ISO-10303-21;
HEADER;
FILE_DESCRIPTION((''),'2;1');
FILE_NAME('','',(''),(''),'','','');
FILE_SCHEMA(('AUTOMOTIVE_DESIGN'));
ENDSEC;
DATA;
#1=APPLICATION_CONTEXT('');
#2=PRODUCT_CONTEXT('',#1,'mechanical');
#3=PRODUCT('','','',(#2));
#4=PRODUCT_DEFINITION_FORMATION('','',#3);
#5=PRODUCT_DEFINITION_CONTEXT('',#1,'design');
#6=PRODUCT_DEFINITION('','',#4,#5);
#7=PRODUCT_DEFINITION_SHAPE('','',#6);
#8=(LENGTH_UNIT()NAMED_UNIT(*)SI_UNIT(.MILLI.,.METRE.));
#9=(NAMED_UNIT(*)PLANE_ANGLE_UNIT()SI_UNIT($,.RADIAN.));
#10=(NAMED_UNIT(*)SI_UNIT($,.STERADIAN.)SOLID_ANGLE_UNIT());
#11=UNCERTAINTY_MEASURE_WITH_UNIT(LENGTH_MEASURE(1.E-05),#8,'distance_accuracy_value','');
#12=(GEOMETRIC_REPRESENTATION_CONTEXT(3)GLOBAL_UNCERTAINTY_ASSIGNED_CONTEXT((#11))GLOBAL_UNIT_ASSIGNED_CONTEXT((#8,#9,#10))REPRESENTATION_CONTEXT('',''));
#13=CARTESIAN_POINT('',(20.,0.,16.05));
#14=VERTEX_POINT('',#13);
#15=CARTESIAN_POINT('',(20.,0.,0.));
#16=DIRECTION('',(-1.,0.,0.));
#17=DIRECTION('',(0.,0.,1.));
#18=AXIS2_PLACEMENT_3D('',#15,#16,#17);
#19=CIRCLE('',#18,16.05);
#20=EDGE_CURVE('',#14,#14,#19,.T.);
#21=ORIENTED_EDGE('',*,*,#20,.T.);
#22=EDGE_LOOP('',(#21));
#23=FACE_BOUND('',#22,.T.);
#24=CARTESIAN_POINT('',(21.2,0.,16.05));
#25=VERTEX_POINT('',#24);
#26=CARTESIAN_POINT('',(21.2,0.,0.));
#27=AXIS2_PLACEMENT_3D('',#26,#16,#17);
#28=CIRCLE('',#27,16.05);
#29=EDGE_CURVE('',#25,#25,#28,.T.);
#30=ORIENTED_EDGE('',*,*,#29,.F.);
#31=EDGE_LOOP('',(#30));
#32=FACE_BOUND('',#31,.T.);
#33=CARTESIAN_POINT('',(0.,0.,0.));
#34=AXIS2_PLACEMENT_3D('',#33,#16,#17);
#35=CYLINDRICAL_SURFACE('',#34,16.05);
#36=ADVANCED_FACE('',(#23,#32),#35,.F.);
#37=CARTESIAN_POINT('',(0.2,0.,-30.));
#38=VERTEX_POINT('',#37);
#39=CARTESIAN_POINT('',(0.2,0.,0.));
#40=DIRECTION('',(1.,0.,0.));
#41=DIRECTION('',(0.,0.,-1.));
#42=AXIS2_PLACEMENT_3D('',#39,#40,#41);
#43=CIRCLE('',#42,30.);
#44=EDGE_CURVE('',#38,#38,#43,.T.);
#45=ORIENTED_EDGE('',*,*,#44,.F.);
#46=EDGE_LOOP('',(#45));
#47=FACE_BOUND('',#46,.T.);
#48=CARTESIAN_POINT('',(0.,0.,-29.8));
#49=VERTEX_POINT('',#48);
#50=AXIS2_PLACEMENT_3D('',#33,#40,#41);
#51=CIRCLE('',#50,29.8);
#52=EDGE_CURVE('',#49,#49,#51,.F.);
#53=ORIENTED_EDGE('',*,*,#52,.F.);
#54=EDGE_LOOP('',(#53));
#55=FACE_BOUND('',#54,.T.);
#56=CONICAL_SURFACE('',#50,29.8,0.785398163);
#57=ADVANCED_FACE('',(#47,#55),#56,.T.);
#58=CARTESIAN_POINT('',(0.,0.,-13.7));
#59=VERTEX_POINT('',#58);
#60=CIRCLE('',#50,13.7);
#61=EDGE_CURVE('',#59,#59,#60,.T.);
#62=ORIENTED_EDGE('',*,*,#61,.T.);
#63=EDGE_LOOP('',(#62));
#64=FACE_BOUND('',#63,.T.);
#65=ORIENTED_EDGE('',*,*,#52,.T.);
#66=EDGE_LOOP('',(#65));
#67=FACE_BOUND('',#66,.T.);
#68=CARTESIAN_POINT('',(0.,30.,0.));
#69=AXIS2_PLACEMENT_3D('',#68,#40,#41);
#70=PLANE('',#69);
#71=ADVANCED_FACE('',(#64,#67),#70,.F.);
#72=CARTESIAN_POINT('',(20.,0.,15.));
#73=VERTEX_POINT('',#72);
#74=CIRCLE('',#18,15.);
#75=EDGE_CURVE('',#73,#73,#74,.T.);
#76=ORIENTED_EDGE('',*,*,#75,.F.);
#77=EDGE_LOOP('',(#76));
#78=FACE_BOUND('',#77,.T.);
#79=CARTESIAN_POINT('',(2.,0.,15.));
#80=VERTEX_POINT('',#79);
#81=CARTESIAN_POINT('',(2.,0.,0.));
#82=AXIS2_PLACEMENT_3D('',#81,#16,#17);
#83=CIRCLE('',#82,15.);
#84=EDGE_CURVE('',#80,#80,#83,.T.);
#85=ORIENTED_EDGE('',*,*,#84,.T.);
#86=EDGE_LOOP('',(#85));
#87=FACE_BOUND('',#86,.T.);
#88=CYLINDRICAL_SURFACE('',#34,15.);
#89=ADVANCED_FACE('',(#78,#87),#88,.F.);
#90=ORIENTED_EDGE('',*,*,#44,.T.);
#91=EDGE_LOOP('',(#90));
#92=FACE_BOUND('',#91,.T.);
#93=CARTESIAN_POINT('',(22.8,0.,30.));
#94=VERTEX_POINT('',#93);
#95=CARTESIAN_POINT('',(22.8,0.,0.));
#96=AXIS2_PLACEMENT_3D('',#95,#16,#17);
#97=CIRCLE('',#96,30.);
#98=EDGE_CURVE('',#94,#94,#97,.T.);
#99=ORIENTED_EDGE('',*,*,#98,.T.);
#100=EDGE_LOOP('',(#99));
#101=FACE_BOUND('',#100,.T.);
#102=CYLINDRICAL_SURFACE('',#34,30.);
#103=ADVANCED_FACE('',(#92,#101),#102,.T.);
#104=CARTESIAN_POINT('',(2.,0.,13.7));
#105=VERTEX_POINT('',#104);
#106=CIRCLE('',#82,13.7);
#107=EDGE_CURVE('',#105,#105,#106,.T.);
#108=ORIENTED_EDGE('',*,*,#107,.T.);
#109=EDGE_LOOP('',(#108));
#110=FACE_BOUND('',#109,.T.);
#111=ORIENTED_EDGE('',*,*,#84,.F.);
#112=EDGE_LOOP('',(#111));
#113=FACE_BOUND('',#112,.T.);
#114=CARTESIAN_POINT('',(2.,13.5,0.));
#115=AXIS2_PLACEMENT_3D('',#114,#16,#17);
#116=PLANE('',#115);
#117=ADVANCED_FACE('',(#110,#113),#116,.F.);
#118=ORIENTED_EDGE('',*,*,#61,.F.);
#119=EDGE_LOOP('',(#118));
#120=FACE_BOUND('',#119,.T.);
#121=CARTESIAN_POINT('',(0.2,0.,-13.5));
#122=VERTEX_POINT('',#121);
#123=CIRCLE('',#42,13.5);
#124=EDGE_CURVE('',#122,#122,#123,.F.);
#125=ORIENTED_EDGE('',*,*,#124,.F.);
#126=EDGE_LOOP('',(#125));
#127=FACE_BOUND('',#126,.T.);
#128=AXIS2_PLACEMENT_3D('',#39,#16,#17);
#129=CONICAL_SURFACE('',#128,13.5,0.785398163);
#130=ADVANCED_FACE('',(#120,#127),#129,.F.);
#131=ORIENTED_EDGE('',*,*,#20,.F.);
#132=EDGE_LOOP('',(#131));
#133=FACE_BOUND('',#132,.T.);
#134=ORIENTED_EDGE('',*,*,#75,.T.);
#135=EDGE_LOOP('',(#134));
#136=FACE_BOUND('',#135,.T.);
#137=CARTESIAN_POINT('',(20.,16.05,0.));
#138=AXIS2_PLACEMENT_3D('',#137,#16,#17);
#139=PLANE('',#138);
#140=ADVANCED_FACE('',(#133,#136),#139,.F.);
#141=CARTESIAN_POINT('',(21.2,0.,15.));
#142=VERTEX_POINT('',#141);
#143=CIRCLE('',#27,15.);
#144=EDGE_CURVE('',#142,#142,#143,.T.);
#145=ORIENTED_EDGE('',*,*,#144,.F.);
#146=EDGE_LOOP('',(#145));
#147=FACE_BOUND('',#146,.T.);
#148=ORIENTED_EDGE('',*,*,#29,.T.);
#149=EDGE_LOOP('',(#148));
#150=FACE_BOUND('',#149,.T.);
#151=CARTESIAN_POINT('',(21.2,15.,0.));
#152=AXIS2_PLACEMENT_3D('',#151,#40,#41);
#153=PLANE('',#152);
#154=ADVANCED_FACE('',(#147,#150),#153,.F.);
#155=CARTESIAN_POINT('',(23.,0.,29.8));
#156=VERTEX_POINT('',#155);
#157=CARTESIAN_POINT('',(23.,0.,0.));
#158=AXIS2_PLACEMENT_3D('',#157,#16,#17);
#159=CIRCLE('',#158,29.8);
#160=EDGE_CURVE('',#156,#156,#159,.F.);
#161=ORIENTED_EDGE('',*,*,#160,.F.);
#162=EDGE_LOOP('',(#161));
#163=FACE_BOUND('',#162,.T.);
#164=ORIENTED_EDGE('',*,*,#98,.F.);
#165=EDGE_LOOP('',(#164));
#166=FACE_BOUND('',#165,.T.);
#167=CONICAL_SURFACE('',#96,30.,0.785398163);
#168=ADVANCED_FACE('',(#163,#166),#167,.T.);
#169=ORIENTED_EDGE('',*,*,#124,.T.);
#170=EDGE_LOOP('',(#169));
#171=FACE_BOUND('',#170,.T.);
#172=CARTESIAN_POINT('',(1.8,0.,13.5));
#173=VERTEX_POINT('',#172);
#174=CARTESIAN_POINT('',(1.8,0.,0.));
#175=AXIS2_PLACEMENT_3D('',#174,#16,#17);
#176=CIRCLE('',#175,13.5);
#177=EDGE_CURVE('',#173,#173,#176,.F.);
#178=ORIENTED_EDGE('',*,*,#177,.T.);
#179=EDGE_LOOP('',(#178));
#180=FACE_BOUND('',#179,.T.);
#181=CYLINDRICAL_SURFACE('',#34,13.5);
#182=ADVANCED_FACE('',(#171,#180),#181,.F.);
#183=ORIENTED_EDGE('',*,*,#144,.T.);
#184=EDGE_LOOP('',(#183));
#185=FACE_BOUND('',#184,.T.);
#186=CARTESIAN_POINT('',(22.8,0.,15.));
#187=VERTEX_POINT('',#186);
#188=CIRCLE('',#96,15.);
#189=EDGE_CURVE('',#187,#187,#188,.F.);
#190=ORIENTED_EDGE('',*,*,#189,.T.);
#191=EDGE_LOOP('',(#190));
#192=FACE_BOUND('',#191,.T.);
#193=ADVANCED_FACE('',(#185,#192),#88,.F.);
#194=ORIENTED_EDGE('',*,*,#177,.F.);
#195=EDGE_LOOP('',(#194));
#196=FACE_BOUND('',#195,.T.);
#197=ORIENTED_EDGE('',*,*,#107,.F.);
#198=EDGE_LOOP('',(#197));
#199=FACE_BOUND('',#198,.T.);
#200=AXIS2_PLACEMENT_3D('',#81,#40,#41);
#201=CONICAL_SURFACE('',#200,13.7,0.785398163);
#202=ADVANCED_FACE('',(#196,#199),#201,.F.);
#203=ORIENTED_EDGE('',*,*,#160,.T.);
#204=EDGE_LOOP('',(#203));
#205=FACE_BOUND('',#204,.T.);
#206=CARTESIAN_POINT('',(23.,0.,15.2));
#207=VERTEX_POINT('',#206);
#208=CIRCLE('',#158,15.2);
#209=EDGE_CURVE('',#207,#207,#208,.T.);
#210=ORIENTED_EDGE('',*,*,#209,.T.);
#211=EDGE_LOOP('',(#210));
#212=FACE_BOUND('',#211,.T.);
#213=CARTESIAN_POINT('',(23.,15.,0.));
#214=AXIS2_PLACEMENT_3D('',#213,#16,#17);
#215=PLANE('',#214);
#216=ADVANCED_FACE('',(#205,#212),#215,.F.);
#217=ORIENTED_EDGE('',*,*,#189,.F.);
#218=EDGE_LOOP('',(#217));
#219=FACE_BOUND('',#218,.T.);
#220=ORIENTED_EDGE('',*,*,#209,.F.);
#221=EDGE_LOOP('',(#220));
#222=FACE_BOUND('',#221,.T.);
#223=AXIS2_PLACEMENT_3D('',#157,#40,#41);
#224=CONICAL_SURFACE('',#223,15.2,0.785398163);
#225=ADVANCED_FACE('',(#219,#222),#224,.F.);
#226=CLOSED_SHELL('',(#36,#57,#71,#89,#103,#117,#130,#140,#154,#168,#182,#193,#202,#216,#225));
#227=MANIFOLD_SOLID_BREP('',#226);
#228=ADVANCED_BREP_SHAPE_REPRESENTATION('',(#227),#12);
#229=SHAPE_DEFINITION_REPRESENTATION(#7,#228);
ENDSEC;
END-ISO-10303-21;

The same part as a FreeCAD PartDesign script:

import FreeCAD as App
import Part
import Sketcher
Q = App.Units.Quantity


def edges_at(feature, points):
    """Names of the edges that pass closest to the given points."""
    edges = feature.Shape.Edges
    near = lambda p: min(range(len(edges)), key=lambda i: edges[i].distToShape(Part.Vertex(*p))[0])
    return sorted({f"Edge{near(p) + 1}" for p in points})


def add_polygon(sketch, points):
    """Adds a closed chain of lines whose ends are joined by coincident constraints."""
    first, n = sketch.GeometryCount, len(points)
    for a, b in zip(points, points[1:] + points[:1]):
        sketch.addGeometry(Part.LineSegment(App.Vector(*a, 0), App.Vector(*b, 0)), False)
    for i in range(n):
        sketch.addConstraint(Sketcher.Constraint("Coincident", first + i, 2, first + (i + 1) % n, 1))

doc = App.newDocument("Part")
body = doc.addObject("PartDesign::Body", "Body")

sketch1 = doc.addObject("Sketcher::SketchObject", "Sketch")
body.addObject(sketch1)
sketch1.AttachmentSupport = (doc.XY_Plane, [""])
sketch1.MapMode = "FlatFace"
add_polygon(sketch1, [(0, 13.5), (2, 13.5), (2, 15), (20, 15), (20, 16.05), (21.2, 16.05), (21.2, 15), (23, 15), (23, 30), (0, 30)])
sketch1.addConstraint([
    Sketcher.Constraint("Horizontal", 0),
    Sketcher.Constraint("Vertical", 1),
    Sketcher.Constraint("Horizontal", 2),
    Sketcher.Constraint("Vertical", 3),
    Sketcher.Constraint("Horizontal", 4),
    Sketcher.Constraint("Vertical", 5),
    Sketcher.Constraint("Horizontal", 6),
    Sketcher.Constraint("Vertical", 7),
    Sketcher.Constraint("Horizontal", 8),
    Sketcher.Constraint("Vertical", 9),
    Sketcher.Constraint("PointOnObject", 8, 2, -2),
    Sketcher.Constraint("Horizontal", 2, 2, 5, 2),
    Sketcher.Constraint("DistanceX", 0, 1, 0, 2, Q("2 mm")),
    Sketcher.Constraint("DistanceX", 2, 1, 2, 2, Q("18 mm")),
    Sketcher.Constraint("DistanceX", 8, 2, 8, 1, Q("23 mm")),
    Sketcher.Constraint("DistanceY", 7, 1, 7, 2, Q("15 mm")),
    Sketcher.Constraint("DistanceX", 4, 1, 4, 2, Q("1.2 mm")),
    Sketcher.Constraint("DistanceY", 1, 1, 1, 2, Q("1.5 mm")),
    Sketcher.Constraint("DistanceY", -1, 1, 1, 2, Q("15 mm")),
    Sketcher.Constraint("DistanceY", 3, 1, 3, 2, Q("1.05 mm")),
])
revolution = doc.addObject("PartDesign::Revolution", "Revolution")
body.addObject(revolution)
revolution.Profile = sketch1
revolution.ReferenceAxis = (sketch1, ["H_Axis"])
revolution.Angle = 360
doc.recompute()

chamfer = doc.addObject("PartDesign::Chamfer", "Chamfer")
body.addObject(chamfer)
chamfer.Base = (revolution, edges_at(revolution, [
    (2, 0, -13.5),
    (0, 0, -13.5),
    (0, 0, -30),
    (23, 0, -30),
    (23, 0, -15),
]))
chamfer.Size = 0.2

doc.recompute()
